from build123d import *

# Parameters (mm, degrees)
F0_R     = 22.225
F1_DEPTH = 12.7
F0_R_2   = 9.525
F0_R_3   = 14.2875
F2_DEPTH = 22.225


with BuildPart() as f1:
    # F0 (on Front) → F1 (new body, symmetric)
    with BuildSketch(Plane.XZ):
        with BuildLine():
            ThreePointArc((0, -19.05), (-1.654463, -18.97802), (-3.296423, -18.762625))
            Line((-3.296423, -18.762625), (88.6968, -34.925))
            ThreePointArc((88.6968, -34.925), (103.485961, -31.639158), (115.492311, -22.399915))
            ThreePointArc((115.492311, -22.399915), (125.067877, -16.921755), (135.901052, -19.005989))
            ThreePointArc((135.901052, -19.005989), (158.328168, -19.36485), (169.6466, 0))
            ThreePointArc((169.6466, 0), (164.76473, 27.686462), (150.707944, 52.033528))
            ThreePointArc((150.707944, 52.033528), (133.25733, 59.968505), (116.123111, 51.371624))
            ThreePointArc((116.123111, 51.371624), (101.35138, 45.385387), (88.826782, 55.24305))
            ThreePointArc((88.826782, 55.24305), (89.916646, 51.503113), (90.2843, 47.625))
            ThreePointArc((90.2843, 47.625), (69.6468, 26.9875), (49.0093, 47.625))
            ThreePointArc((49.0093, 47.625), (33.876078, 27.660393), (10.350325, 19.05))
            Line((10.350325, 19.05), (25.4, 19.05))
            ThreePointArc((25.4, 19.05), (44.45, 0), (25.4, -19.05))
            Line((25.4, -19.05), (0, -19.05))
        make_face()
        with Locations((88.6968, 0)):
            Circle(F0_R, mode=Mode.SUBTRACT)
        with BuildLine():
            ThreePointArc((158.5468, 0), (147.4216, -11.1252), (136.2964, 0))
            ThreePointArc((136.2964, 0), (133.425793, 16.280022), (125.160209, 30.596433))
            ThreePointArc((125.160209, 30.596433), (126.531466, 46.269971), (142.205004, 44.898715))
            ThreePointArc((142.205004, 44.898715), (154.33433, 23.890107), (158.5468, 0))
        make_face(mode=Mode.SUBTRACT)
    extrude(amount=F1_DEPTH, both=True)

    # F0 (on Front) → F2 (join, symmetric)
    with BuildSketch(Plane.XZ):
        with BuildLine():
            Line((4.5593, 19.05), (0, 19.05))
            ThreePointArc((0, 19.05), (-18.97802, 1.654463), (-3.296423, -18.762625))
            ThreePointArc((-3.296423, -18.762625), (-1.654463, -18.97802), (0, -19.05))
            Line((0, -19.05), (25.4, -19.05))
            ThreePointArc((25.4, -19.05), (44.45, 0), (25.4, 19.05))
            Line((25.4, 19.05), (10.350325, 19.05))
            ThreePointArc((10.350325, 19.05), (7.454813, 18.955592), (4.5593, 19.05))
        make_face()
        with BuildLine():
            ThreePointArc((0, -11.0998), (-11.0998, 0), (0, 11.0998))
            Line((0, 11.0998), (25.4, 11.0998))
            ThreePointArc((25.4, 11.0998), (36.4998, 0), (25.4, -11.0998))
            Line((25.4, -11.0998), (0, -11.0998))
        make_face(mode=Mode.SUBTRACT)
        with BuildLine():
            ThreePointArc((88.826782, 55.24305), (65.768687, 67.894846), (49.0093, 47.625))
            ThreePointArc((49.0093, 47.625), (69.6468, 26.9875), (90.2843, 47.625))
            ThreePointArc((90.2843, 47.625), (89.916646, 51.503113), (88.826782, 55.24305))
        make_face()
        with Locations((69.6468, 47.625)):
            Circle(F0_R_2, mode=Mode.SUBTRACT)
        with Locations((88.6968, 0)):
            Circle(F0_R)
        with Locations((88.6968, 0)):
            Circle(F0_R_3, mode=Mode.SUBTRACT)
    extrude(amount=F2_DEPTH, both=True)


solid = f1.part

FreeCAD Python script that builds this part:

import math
import FreeCAD as App
import Part
import Sketcher
from FreeCAD import Vector
Q = App.Units.Quantity

doc = App.newDocument("Part")
body = doc.addObject("PartDesign::Body", "Body")

# Sketch on XZ plane
sketch1 = body.newObject("Sketcher::SketchObject", "Sketch")
sketch1.AttachmentSupport = (doc.getObject("XZ_Plane"), [""])
sketch1.MapMode = "FlatFace"
sketch1.addGeometry([
    Part.ArcOfCircle(Part.Circle(Vector(0, 0, 0), Vector(0, 0, 1), 19.1), math.radians(-99.96), math.radians(-90)),  # 0
    Part.LineSegment(Vector(-3.3, -18.8, 0), Vector(88.7, -34.9, 0)),  # 1
    Part.ArcOfCircle(Part.Circle(Vector(88.7, 0, 0), Vector(0, 0, 1), 34.9), math.radians(-90), math.radians(-40)),  # 2
    Part.ArcOfCircle(Part.Circle(Vector(127.7, -32.6, 0), Vector(0, 0, 1), 15.9), math.radians(59), math.radians(140)),  # 3
    Part.ArcOfCircle(Part.Circle(Vector(147.4, 0, 0), Vector(0, 0, 1), 22.2), math.radians(-121), math.radians(0)),  # 4
    Part.ArcOfCircle(Part.Circle(Vector(88.7, 0, 0), Vector(0, 0, 1), 80.9), math.radians(0), math.radians(40)),  # 5
    Part.ArcOfCircle(Part.Circle(Vector(133.7, 37.7, 0), Vector(0, 0, 1), 22.2), math.radians(40), math.radians(142)),  # 6
    Part.ArcOfCircle(Part.Circle(Vector(103.6, 61.1, 0), Vector(0, 0, 1), 15.9), math.radians(-158), math.radians(-38)),  # 7
    Part.ArcOfCircle(Part.Circle(Vector(69.6, 47.6, 0), Vector(0, 0, 1), 20.6), math.radians(0), math.radians(22)),  # 8
    Part.ArcOfCircle(Part.Circle(Vector(69.6, 47.6, 0), Vector(0, 0, 1), 20.6), math.radians(180), math.radians(360)),  # 9
    Part.ArcOfCircle(Part.Circle(Vector(7.5, 63.4, 0), Vector(0, 0, 1), 44.5), math.radians(-86), math.radians(-21)),  # 10
    Part.LineSegment(Vector(10.4, 19.1, 0), Vector(25.4, 19.1, 0)),  # 11
    Part.ArcOfCircle(Part.Circle(Vector(25.4, 0, 0), Vector(0, 0, 1), 19.1), math.radians(-90), math.radians(90)),  # 12
    Part.LineSegment(Vector(25.4, -19.1, 0), Vector(0, -19.1, 0)),  # 13
    Part.Circle(Vector(88.7, 0, 0), Vector(0, 0, 1), 22.2),  # 14
    Part.ArcOfCircle(Part.Circle(Vector(88.7, 0, 0), Vector(0, 0, 1), 69.8), math.radians(0), math.radians(40)),  # 15
    Part.ArcOfCircle(Part.Circle(Vector(147.4, 0, 0), Vector(0, 0, 1), 11.1), math.radians(180), math.radians(360)),  # 16
    Part.ArcOfCircle(Part.Circle(Vector(88.7, 0, 0), Vector(0, 0, 1), 47.6), math.radians(0), math.radians(40)),  # 17
    Part.ArcOfCircle(Part.Circle(Vector(133.7, 37.7, 0), Vector(0, 0, 1), 11.1), math.radians(40), math.radians(220)),  # 18
], False)
sketch1.addConstraint([
    Sketcher.Constraint("Tangent", 0, 1, 1, 1),
    Sketcher.Constraint("Coincident", 1, 2, 2, 1),
    Sketcher.Constraint("Tangent", 2, 2, 3, 2),
    Sketcher.Constraint("Tangent", 3, 1, 4, 1),
    Sketcher.Constraint("Tangent", 4, 2, 5, 1),
    Sketcher.Constraint("Tangent", 5, 2, 6, 1),
    Sketcher.Constraint("Tangent", 6, 2, 7, 2),
    Sketcher.Constraint("Tangent", 7, 1, 8, 2),
    Sketcher.Constraint("Tangent", 8, 1, 9, 2),
    Sketcher.Constraint("Coincident", 9, 1, 10, 2),
    Sketcher.Constraint("Coincident", 10, 1, 11, 1),
    Sketcher.Constraint("Tangent", 11, 2, 12, 2),
    Sketcher.Constraint("Tangent", 12, 1, 13, 1),
    Sketcher.Constraint("Tangent", 13, 2, 0, 2),
    Sketcher.Constraint("Tangent", 15, 1, 16, 2),
    Sketcher.Constraint("Tangent", 16, 1, 17, 1),
    Sketcher.Constraint("Tangent", 17, 2, 18, 2),
    Sketcher.Constraint("Tangent", 18, 1, 15, 2),
    Sketcher.Constraint("Horizontal", 11),
    Sketcher.Constraint("Horizontal", 13),
    Sketcher.Constraint("Coincident", 5, 3, 2, 3),
    Sketcher.Constraint("Coincident", 14, 3, 2, 3),
    Sketcher.Constraint("Coincident", 15, 3, 2, 3),
    Sketcher.Constraint("Coincident", 16, 3, 4, 3),
    Sketcher.Constraint("Coincident", 17, 3, 2, 3),
    Sketcher.Constraint("Coincident", 18, 3, 6, 3),
    Sketcher.Constraint("Equal", 3, 7),
    Sketcher.Constraint("Equal", 6, 14),
    Sketcher.Constraint("PointOnObject", 2, 3, -1),
    Sketcher.Constraint("PointOnObject", 4, 3, -1),
    Sketcher.Constraint("PointOnObject", 12, 3, -1),
    Sketcher.Constraint("PointOnObject", 13, 2, -2),
    Sketcher.Constraint("Horizontal", 9, 3, 8, 1),
    Sketcher.Constraint("Horizontal", 8, 1, 9, 1),
    Sketcher.Constraint("Vertical", 14, 3, 1, 2),
    Sketcher.Constraint("Diameter", 14, Q("1.75 in")),
    Sketcher.Constraint("DistanceX", 13, 2, 13, 1, Q("1 in")),
    Sketcher.Constraint("Radius", 10, Q("1.75 in")),
    Sketcher.Constraint("Radius", 12, Q("0.75 in")),
    Sketcher.Constraint("Radius", 2, Q("1.3750001 in")),
    Sketcher.Constraint("Radius", 3, Q("0.625 in")),
    Sketcher.Constraint("Radius", 9, Q("0.8125 in")),
    Sketcher.Constraint("Radius", 16, Q("0.438 in")),
    Sketcher.Constraint("Radius", 17, Q("1.8739999 in")),
    Sketcher.Constraint("DistanceX", 9, 3, 2, 3, Q("0.75 in")),
    Sketcher.Constraint("DistanceX", -1, 1, 2, 3, Q("3.492 in")),
    Sketcher.Constraint("DistanceY", -1, 1, 8, 3, Q("1.8750001 in")),
    Sketcher.Constraint("Radius", 0, 19.050068),
    Sketcher.Constraint("Radius", 8, 20.637478),
    Sketcher.Constraint("DistanceX", 0, 3, 6, 3, 133.6826),
    Sketcher.Constraint("DistanceX", 11, 1, 11, 2, 15.049675),
])
pad1 = body.newObject("PartDesign::Pad", "Pad")
pad1.Profile = sketch1
pad1.Length = Q("1 in")
pad1.Midplane = True

# Sketch on XZ plane
sketch2 = body.newObject("Sketcher::SketchObject", "Sketch001")
sketch2.AttachmentSupport = (doc.getObject("XZ_Plane"), [""])
sketch2.MapMode = "FlatFace"
sketch2.addGeometry([
    Part.LineSegment(Vector(4.5593, 19.05, 0), Vector(0, 19.05, 0)),  # 0
    Part.ArcOfCircle(Part.Circle(Vector(0, 0, 0), Vector(0, 0, 1), 19.05), math.radians(90.000001), math.radians(260.035347)),  # 1
    Part.ArcOfCircle(Part.Circle(Vector(0.000006, 0.000068, 0), Vector(0, 0, 1), 19.050068), math.radians(-99.964633), math.radians(-90.000017)),  # 2
    Part.LineSegment(Vector(0, -19.05, 0), Vector(25.4, -19.05, 0)),  # 3
    Part.ArcOfCircle(Part.Circle(Vector(25.4, 0, 0), Vector(0, 0, 1), 19.05), math.radians(-90), math.radians(90)),  # 4
    Part.LineSegment(Vector(25.4, 19.05, 0), Vector(10.350325, 19.05, 0)),  # 5
    Part.ArcOfCircle(Part.Circle(Vector(7.454813, 63.405774, 0), Vector(0, 0, 1), 44.450182), math.radians(-93.734927), math.radians(-86.265073)),  # 6
    Part.LineSegment(Vector(25.4, -11.0998, 0), Vector(0, -11.0998, 0)),  # 7
    Part.ArcOfCircle(Part.Circle(Vector(0, 0, 0), Vector(0, 0, 1), 11.0998), math.radians(90), math.radians(270)),  # 8
    Part.LineSegment(Vector(0, 11.0998, 0), Vector(25.4, 11.0998, 0)),  # 9
    Part.ArcOfCircle(Part.Circle(Vector(25.4, 0, 0), Vector(0, 0, 1), 11.0998), math.radians(-90), math.radians(90)),  # 10
    Part.ArcOfCircle(Part.Circle(Vector(69.6468, 47.625, 0), Vector(0, 0, 1), 20.6375), math.radians(21.662358), math.radians(180.000001)),  # 11
    Part.ArcOfCircle(Part.Circle(Vector(69.6468, 47.625, 0), Vector(0, 0, 1), 20.6375), math.radians(180), math.radians(360)),  # 12
    Part.ArcOfCircle(Part.Circle(Vector(69.646822, 47.625004, 0), Vector(0, 0, 1), 20.637478), math.radians(-0.00001), math.radians(21.662373)),  # 13
    Part.Circle(Vector(69.6468, 47.625, 0), Vector(0, 0, 1), 9.525),  # 14
    Part.Circle(Vector(88.6968, 0, 0), Vector(0, 0, 1), 22.225),  # 15
    Part.Circle(Vector(88.6968, 0, 0), Vector(0, 0, 1), 14.2875),  # 16
], False)
sketch2.addConstraint([
    Sketcher.Constraint("Coincident", 0, 2, 1, 1),
    Sketcher.Constraint("Coincident", 1, 2, 2, 1),
    Sketcher.Constraint("Coincident", 2, 2, 3, 1),
    Sketcher.Constraint("Coincident", 3, 2, 4, 1),
    Sketcher.Constraint("Coincident", 4, 2, 5, 1),
    Sketcher.Constraint("Coincident", 5, 2, 6, 2),
    Sketcher.Constraint("Coincident", 6, 1, 0, 1),
    Sketcher.Constraint("Coincident", 7, 2, 8, 2),
    Sketcher.Constraint("Coincident", 8, 1, 9, 1),
    Sketcher.Constraint("Coincident", 9, 2, 10, 2),
    Sketcher.Constraint("Coincident", 10, 1, 7, 1),
    Sketcher.Constraint("Coincident", 11, 2, 12, 1),
    Sketcher.Constraint("Coincident", 12, 2, 13, 1),
    Sketcher.Constraint("Coincident", 13, 2, 11, 1),
    Sketcher.Constraint("Horizontal", 0),
    Sketcher.Constraint("Horizontal", 3),
    Sketcher.Constraint("Horizontal", 5),
    Sketcher.Constraint("Horizontal", 7),
    Sketcher.Constraint("Horizontal", 9),
    Sketcher.Constraint("Coincident", 1, 3, -1, 1),
    Sketcher.Constraint("Coincident", 8, 3, -1, 1),
    Sketcher.Constraint("Coincident", 10, 3, 4, 3),
    Sketcher.Constraint("Coincident", 12, 3, 11, 3),
    Sketcher.Constraint("Coincident", 14, 3, 11, 3),
    Sketcher.Constraint("Coincident", 16, 3, 15, 3),
    Sketcher.Constraint("PointOnObject", 15, 3, -1),
    Sketcher.Constraint("PointOnObject", 0, 2, -2),
    Sketcher.Constraint("PointOnObject", 2, 2, -2),
    Sketcher.Constraint("PointOnObject", 7, 2, -2),
    Sketcher.Constraint("PointOnObject", 8, 1, -2),
    Sketcher.Constraint("Diameter", 14, Q("0.75 in")),
    Sketcher.Constraint("Diameter", 15, Q("1.75 in")),
    Sketcher.Constraint("DistanceX", 3, 1, 3, 2, Q("1 in")),
    Sketcher.Constraint("DistanceX", 7, 2, 7, 1, Q("1 in")),
    Sketcher.Constraint("DistanceX", 9, 1, 9, 2, Q("1 in")),
    Sketcher.Constraint("Radius", 1, Q("0.75 in")),
    Sketcher.Constraint("Radius", 4, Q("0.75 in")),
    Sketcher.Constraint("Diameter", 16, Q("1.125 in")),
    Sketcher.Constraint("DistanceX", -1, 1, 4, 3, Q("1 in")),
    Sketcher.Constraint("DistanceX", -1, 1, 4, 2, Q("1 in")),
    Sketcher.Constraint("Radius", 8, Q("0.437 in")),
    Sketcher.Constraint("Radius", 11, Q("0.8125 in")),
    Sketcher.Constraint("DistanceX", 12, 3, 15, 3, Q("0.75 in")),
    Sketcher.Constraint("DistanceX", 0, 2, 0, 1, Q("0.1795 in")),
    Sketcher.Constraint("DistanceX", -1, 1, 11, 3, Q("2.742 in")),
    Sketcher.Constraint("DistanceY", -1, 1, 11, 3, Q("1.875 in")),
    Sketcher.Constraint("DistanceY", -1, 1, 13, 3, Q("1.8750001 in")),
    Sketcher.Constraint("DistanceY", -1, 1, 11, 2, Q("1.875 in")),
    Sketcher.Constraint("DistanceY", -1, 1, 12, 2, Q("1.875 in")),
    Sketcher.Constraint("Radius", 6, 44.450182),
    Sketcher.Constraint("Radius", 2, 19.050068),
    Sketcher.Constraint("DistanceX", 5, 2, 5, 1, 15.049675),
    Sketcher.Constraint("DistanceX", -1, 1, 13, 2, 88.826782),
    Sketcher.Constraint("DistanceX", 1, 2, 2, 3, 3.296429),
])
pad2 = body.newObject("PartDesign::Pad", "Pad001")
pad2.Profile = sketch2
pad2.Length = Q("1.75 in")
pad2.Midplane = True

doc.recompute()
